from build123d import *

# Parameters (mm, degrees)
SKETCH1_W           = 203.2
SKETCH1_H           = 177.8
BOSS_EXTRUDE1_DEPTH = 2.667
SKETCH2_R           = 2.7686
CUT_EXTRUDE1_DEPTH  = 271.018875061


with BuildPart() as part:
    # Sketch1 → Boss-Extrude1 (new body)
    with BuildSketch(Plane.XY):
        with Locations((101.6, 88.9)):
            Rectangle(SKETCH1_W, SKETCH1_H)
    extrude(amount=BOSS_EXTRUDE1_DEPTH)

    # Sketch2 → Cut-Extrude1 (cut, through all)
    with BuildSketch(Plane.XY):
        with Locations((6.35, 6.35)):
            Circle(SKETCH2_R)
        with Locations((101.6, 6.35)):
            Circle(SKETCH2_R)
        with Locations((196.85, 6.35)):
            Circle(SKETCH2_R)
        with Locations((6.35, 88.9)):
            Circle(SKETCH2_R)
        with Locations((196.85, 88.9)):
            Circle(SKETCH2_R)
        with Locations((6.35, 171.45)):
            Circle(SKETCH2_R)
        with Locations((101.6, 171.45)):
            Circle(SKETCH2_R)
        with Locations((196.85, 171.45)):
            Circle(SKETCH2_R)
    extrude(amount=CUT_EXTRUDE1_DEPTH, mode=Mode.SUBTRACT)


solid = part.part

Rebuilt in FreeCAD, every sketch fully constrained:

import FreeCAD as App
import Part
import Sketcher

V = App.Vector
Q = App.Units.Quantity


def add_polygon(sketch, points):
    """Adds a closed chain of lines whose ends are joined by coincident constraints."""
    first, n = sketch.GeometryCount, len(points)
    for a, b in zip(points, points[1:] + points[:1]):
        sketch.addGeometry(Part.LineSegment(App.Vector(*a, 0), App.Vector(*b, 0)), False)
    for i in range(n):
        sketch.addConstraint(Sketcher.Constraint("Coincident", first + i, 2, first + (i + 1) % n, 1))

doc = App.newDocument("Part")
params = doc.addObject("Spreadsheet::Sheet", "Params")
for row, (alias, value) in enumerate([
    ("sketch1_width", "8 in"),
    ("sketch1_height", "7 in"),
    ("pad1_length", "0.105 in"),
    ("sketch2_diameter", "0.218 in"),
], start=1):
    params.set(f"A{row}", alias)
    params.set(f"B{row}", "=" + value)
    params.setAlias(f"B{row}", alias)

body = doc.addObject("PartDesign::Body", "Body")

# Sketch on XY plane
sketch1 = body.newObject("Sketcher::SketchObject", "Sketch")
sketch1.AttachmentSupport = (doc.getObject("XY_Plane"), [""])
sketch1.MapMode = "FlatFace"
add_polygon(sketch1, [(0, 178), (0, 0), (203, 0), (203, 178)])  # lines 0-3
sketch1.addConstraint(Sketcher.Constraint("Vertical", 0))
sketch1.addConstraint(Sketcher.Constraint("Horizontal", 1))
sketch1.addConstraint(Sketcher.Constraint("Vertical", 2))
sketch1.addConstraint(Sketcher.Constraint("Horizontal", 3))
sketch1.addConstraint(Sketcher.Constraint("Coincident", 0, 2, -1, 1))
sketch1.addConstraint(Sketcher.Constraint("DistanceX", 1, 1, 1, 2, Q("8 in")))
sketch1.addConstraint(Sketcher.Constraint("DistanceY", 0, 2, 0, 1, Q("7 in")))
sketch1.setExpression("Constraints[9]", "Params.sketch1_width")
sketch1.setExpression("Constraints[10]", "Params.sketch1_height")
pad1 = body.newObject("PartDesign::Pad", "Pad")
pad1.Profile = sketch1
pad1.setExpression("Length", "Params.pad1_length")

# Sketch on XY plane
sketch2 = body.newObject("Sketcher::SketchObject", "Sketch001")
sketch2.AttachmentSupport = (doc.getObject("XY_Plane"), [""])
sketch2.MapMode = "FlatFace"
sketch2.addGeometry(Part.Circle(V(6.3, 6.3, 0), V(0, 0, 1), 2.8), False)
sketch2.addGeometry(Part.Circle(V(101.6, 6.3, 0), V(0, 0, 1), 2.8), False)
sketch2.addGeometry(Part.Circle(V(196.8, 6.3, 0), V(0, 0, 1), 2.8), False)
sketch2.addGeometry(Part.Circle(V(6.3, 88.9, 0), V(0, 0, 1), 2.8), False)
sketch2.addGeometry(Part.Circle(V(196.8, 88.9, 0), V(0, 0, 1), 2.8), False)
sketch2.addGeometry(Part.Circle(V(6.3, 171.4, 0), V(0, 0, 1), 2.8), False)
sketch2.addGeometry(Part.Circle(V(101.6, 171.4, 0), V(0, 0, 1), 2.8), False)
sketch2.addGeometry(Part.Circle(V(196.8, 171.4, 0), V(0, 0, 1), 2.8), False)
sketch2.addConstraint(Sketcher.Constraint("Equal", 0, 1))
sketch2.addConstraint(Sketcher.Constraint("Equal", 1, 2))
sketch2.addConstraint(Sketcher.Constraint("Equal", 2, 3))
sketch2.addConstraint(Sketcher.Constraint("Equal", 3, 4))
sketch2.addConstraint(Sketcher.Constraint("Equal", 4, 5))
sketch2.addConstraint(Sketcher.Constraint("Equal", 5, 6))
sketch2.addConstraint(Sketcher.Constraint("Equal", 6, 7))
sketch2.addConstraint(Sketcher.Constraint("Horizontal", 0, 3, 1, 3))
sketch2.addConstraint(Sketcher.Constraint("Horizontal", 1, 3, 2, 3))
sketch2.addConstraint(Sketcher.Constraint("Horizontal", 3, 3, 4, 3))
sketch2.addConstraint(Sketcher.Constraint("Horizontal", 5, 3, 6, 3))
sketch2.addConstraint(Sketcher.Constraint("Horizontal", 6, 3, 7, 3))
sketch2.addConstraint(Sketcher.Constraint("Vertical", 0, 3, 3, 3))
sketch2.addConstraint(Sketcher.Constraint("Vertical", 2, 3, 4, 3))
sketch2.addConstraint(Sketcher.Constraint("Vertical", 3, 3, 5, 3))
sketch2.addConstraint(Sketcher.Constraint("Vertical", 1, 3, 6, 3))
sketch2.addConstraint(Sketcher.Constraint("Vertical", 4, 3, 7, 3))
sketch2.addConstraint(Sketcher.Constraint("Diameter", 0, Q("0.218 in")))
sketch2.addConstraint(Sketcher.Constraint("DistanceX", -1, 1, 1, 3, Q("4 in")))
sketch2.addConstraint(Sketcher.Constraint("DistanceY", -1, 1, 3, 3, Q("3.5 in")))
sketch2.addConstraint(Sketcher.Constraint("DistanceX", 0, 3, 2, 3, Q("7.5 in")))
sketch2.addConstraint(Sketcher.Constraint("DistanceY", 0, 3, 5, 3, Q("6.5 in")))
sketch2.addConstraint(Sketcher.Constraint("DistanceX", -1, 1, 0, 3, Q("0.25 in")))
sketch2.addConstraint(Sketcher.Constraint("DistanceY", -1, 1, 0, 3, Q("0.25 in")))
sketch2.setExpression("Constraints[17]", "Params.sketch2_diameter")
pocket1 = body.newObject("PartDesign::Pocket", "Pocket")
pocket1.Profile = sketch2
pocket1.Type = "ThroughAll"
pocket1.Reversed = True

doc.recompute()
